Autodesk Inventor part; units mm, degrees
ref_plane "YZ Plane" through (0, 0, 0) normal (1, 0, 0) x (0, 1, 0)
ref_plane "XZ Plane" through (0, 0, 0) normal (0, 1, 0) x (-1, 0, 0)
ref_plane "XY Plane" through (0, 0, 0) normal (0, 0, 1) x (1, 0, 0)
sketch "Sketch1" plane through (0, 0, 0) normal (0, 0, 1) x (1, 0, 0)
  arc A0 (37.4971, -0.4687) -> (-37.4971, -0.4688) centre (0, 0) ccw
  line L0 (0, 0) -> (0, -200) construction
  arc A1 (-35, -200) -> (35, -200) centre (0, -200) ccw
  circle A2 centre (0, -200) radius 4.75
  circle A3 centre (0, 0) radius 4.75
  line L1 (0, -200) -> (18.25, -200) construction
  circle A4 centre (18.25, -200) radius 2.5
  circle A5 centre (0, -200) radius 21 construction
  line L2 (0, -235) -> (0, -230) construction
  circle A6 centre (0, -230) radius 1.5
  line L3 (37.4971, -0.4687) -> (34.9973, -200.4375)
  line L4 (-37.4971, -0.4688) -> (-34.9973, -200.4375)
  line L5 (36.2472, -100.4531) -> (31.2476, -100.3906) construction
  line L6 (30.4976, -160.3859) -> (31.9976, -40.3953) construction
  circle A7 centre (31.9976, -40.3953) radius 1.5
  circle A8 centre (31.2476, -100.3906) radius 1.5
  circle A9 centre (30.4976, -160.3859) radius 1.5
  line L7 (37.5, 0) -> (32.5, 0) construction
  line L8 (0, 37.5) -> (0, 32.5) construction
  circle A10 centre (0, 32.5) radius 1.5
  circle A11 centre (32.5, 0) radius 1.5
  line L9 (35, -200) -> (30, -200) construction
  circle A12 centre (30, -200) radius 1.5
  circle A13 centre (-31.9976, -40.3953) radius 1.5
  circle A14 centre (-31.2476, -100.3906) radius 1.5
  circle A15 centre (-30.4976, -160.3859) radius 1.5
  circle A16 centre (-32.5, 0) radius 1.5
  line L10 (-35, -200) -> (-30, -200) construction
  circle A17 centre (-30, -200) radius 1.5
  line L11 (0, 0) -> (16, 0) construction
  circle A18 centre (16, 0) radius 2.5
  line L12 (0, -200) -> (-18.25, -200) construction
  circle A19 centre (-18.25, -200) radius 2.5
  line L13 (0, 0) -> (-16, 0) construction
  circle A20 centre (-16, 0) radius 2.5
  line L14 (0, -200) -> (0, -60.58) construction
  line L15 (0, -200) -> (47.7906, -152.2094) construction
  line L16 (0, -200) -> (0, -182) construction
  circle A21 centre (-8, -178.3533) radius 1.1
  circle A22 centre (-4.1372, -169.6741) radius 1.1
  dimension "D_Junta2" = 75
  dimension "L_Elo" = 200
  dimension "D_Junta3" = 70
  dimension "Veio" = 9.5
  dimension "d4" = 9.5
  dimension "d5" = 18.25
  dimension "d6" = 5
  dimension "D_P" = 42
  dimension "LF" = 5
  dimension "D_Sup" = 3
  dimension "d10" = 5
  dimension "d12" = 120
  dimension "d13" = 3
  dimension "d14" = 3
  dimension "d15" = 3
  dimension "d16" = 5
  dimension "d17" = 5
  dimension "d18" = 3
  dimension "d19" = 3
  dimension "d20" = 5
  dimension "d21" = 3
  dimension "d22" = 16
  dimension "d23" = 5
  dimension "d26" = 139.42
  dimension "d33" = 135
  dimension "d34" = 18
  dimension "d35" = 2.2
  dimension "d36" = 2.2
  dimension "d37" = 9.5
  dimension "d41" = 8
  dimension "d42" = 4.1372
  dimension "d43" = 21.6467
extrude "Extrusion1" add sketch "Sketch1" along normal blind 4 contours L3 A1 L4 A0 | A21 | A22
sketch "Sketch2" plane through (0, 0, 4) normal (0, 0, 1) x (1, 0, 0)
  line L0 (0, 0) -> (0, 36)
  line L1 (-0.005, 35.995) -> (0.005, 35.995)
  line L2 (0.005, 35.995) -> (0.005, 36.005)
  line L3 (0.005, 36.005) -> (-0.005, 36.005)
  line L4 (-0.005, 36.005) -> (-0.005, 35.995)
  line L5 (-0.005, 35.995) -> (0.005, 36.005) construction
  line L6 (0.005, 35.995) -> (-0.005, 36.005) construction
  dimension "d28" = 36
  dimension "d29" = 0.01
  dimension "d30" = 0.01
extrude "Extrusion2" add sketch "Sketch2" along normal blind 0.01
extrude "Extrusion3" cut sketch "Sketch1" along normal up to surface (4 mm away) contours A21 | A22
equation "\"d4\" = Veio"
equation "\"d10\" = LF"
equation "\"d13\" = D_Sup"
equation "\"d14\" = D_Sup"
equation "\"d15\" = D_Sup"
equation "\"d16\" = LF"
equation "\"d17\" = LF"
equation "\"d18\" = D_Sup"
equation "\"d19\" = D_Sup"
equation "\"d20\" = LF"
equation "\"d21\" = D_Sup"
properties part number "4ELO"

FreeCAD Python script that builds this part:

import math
import FreeCAD as App
import Part
import Sketcher

V = App.Vector

doc = App.newDocument("Part")
params = doc.addObject("Spreadsheet::Sheet", "Params")
for row, (alias, value) in enumerate([
    ("sketch1_diameter", "3 mm"),
    ("sketch1_diameter2", "5 mm"),
    ("sketch1_radius", "35 mm"),
    ("sketch1_diameter3", "9.5 mm"),
    ("sketch1_radius2", "37.5 mm"),
    ("pad1_length", "4 mm"),
    ("sketch2_width", "0.01 mm"),
    ("pad2_length", "0.01 mm"),
    ("sketch3_diameter", "2.2 mm"),
    ("pocket1_length", "4 mm"),
], start=1):
    params.set(f"A{row}", alias)
    params.set(f"B{row}", "=" + value)
    params.setAlias(f"B{row}", alias)

body = doc.addObject("PartDesign::Body", "Body")

sketch1 = body.newObject("Sketcher::SketchObject", "Sketch")
sketch1.AttachmentSupport = (doc.getObject("XY_Plane"), [""])
sketch1.MapMode = "FlatFace"
sketch1.addGeometry([
    Part.LineSegment(V(35, -200.4, 0), V(37.5, -0.5, 0)),
    Part.ArcOfCircle(Part.Circle(V(0, 0, 0), V(0, 0, 1), 37.5), math.radians(-1), math.radians(181)),
    Part.LineSegment(V(-37.5, -0.5, 0), V(-35, -200.4, 0)),
    Part.ArcOfCircle(Part.Circle(V(0, -200, 0), V(0, 0, 1), 35), math.radians(-179), math.radians(-1)),
    Part.Circle(V(-30, -200, 0), V(0, 0, 1), 1.5),
    Part.Circle(V(-18.2, -200, 0), V(0, 0, 1), 2.5),
    Part.Circle(V(-30.5, -160.4, 0), V(0, 0, 1), 1.5),
    Part.Circle(V(-31.2, -100.4, 0), V(0, 0, 1), 1.5),
    Part.Circle(V(0, -230, 0), V(0, 0, 1), 1.5),
    Part.Circle(V(0, -200, 0), V(0, 0, 1), 4.8),
    Part.Circle(V(18.2, -200, 0), V(0, 0, 1), 2.5),
    Part.Circle(V(30, -200, 0), V(0, 0, 1), 1.5),
    Part.Circle(V(30.5, -160.4, 0), V(0, 0, 1), 1.5),
    Part.Circle(V(31.2, -100.4, 0), V(0, 0, 1), 1.5),
    Part.Circle(V(-32, -40.4, 0), V(0, 0, 1), 1.5),
    Part.Circle(V(-32.5, 0, 0), V(0, 0, 1), 1.5),
    Part.Circle(V(-16, 0, 0), V(0, 0, 1), 2.5),
    Part.Circle(V(32, -40.4, 0), V(0, 0, 1), 1.5),
    Part.Circle(V(0, 0, 0), V(0, 0, 1), 4.8),
    Part.Circle(V(16, 0, 0), V(0, 0, 1), 2.5),
    Part.Circle(V(0, 32.5, 0), V(0, 0, 1), 1.5),
    Part.Circle(V(32.5, 0, 0), V(0, 0, 1), 1.5),
], False)
sketch1.addConstraint([
    Sketcher.Constraint("Tangent", 0, 2, 1, 1),
    Sketcher.Constraint("Tangent", 1, 2, 2, 1),
    Sketcher.Constraint("Tangent", 2, 2, 3, 1),
    Sketcher.Constraint("Tangent", 3, 2, 0, 1),
    Sketcher.Constraint("Coincident", 1, 3, -1, 1),
    Sketcher.Constraint("Coincident", 18, 3, -1, 1),
    Sketcher.Constraint("Coincident", 9, 3, 3, 3),
    Sketcher.Constraint("Equal", 4, 6),
    Sketcher.Constraint("Equal", 6, 7),
    Sketcher.Constraint("Equal", 7, 8),
    Sketcher.Constraint("Equal", 5, 10),
    Sketcher.Constraint("Equal", 8, 11),
    Sketcher.Constraint("Equal", 11, 12),
    Sketcher.Constraint("Equal", 12, 13),
    Sketcher.Constraint("Equal", 13, 14),
    Sketcher.Constraint("Equal", 14, 15),
    Sketcher.Constraint("Equal", 10, 16),
    Sketcher.Constraint("Equal", 15, 17),
    Sketcher.Constraint("Equal", 9, 18),
    Sketcher.Constraint("Equal", 16, 19),
    Sketcher.Constraint("Equal", 17, 20),
    Sketcher.Constraint("Equal", 20, 21),
    Sketcher.Constraint("Symmetric", 16, 3, 19, 3, -1, 1),
    Sketcher.Constraint("Symmetric", 15, 3, 21, 3, -1, 1),
    Sketcher.Constraint("Symmetric", 5, 3, 10, 3, -2),
    Sketcher.Constraint("Symmetric", 4, 3, 11, 3, -2),
    Sketcher.Constraint("Symmetric", 6, 3, 12, 3, -2),
    Sketcher.Constraint("Symmetric", 7, 3, 13, 3, -2),
    Sketcher.Constraint("Symmetric", 14, 3, 17, 3, -2),
    Sketcher.Constraint("PointOnObject", 3, 3, -2),
    Sketcher.Constraint("PointOnObject", 8, 3, -2),
    Sketcher.Constraint("PointOnObject", 15, 3, -1),
    Sketcher.Constraint("PointOnObject", 16, 3, -1),
    Sketcher.Constraint("PointOnObject", 20, 3, -2),
    Sketcher.Constraint("Horizontal", 3, 3, 4, 3),
    Sketcher.Constraint("Horizontal", 4, 3, 5, 3),
    Sketcher.Constraint("Diameter", 4, 3.0),
    Sketcher.Constraint("Diameter", 5, 5.0),
    Sketcher.Constraint("Radius", 3, 35.0),
    Sketcher.Constraint("Diameter", 9, 9.5),
    Sketcher.Constraint("Radius", 1, 37.5),
    Sketcher.Constraint("DistanceY", 3, 3, -1, 1, 200.0),
    Sketcher.Constraint("DistanceX", 16, 3, -1, 1, 16.0),
    Sketcher.Constraint("DistanceX", 5, 3, -1, 1, 18.25),
    Sketcher.Constraint("DistanceX", 4, 3, -1, 1, 30.0),
    Sketcher.Constraint("DistanceY", 8, 3, -1, 1, 230.0),
    Sketcher.Constraint("DistanceX", 15, 3, -1, 1, 32.5),
    Sketcher.Constraint("DistanceY", -1, 1, 20, 3, 32.5),
    Sketcher.Constraint("DistanceX", 14, 3, 6, 3, 1.5),
    Sketcher.Constraint("DistanceX", 7, 3, 6, 3, 0.75),
    Sketcher.Constraint("DistanceY", 6, 3, -1, 1, 160.386),
    Sketcher.Constraint("DistanceX", 6, 3, -1, 1, 30.4976),
    Sketcher.Constraint("DistanceY", 7, 3, -1, 1, 100.3906),
    Sketcher.Constraint("DistanceY", 14, 3, -1, 1, 40.3953),
])
sketch1.setExpression("Constraints[36]", "Params.sketch1_diameter")
sketch1.setExpression("Constraints[37]", "Params.sketch1_diameter2")
sketch1.setExpression("Constraints[38]", "Params.sketch1_radius")
sketch1.setExpression("Constraints[39]", "Params.sketch1_diameter3")
sketch1.setExpression("Constraints[40]", "Params.sketch1_radius2")
pad1 = body.newObject("PartDesign::Pad", "Pad")
pad1.Profile = sketch1
pad1.setExpression("Length", "Params.pad1_length")

sketch2 = body.newObject("Sketcher::SketchObject", "Sketch001")
sketch2.AttachmentSupport = (doc.getObject("XY_Plane"), [""])
sketch2.MapMode = "FlatFace"
sketch2.AttachmentOffset = App.Placement(V(0, 0, 4), App.Rotation())
sketch2.addGeometry([
    Part.LineSegment(V(-0.005, 36.005, 0), V(-0.005, 35.995, 0)),
    Part.LineSegment(V(-0.005, 35.995, 0), V(0.005, 35.995, 0)),
    Part.LineSegment(V(0.005, 35.995, 0), V(0.005, 36.005, 0)),
    Part.LineSegment(V(0.005, 36.005, 0), V(-0.005, 36.005, 0)),
], False)
sketch2.addConstraint([
    Sketcher.Constraint("Coincident", 0, 2, 1, 1),
    Sketcher.Constraint("Coincident", 1, 2, 2, 1),
    Sketcher.Constraint("Coincident", 2, 2, 3, 1),
    Sketcher.Constraint("Coincident", 3, 2, 0, 1),
    Sketcher.Constraint("Vertical", 0),
    Sketcher.Constraint("Horizontal", 1),
    Sketcher.Constraint("Vertical", 2),
    Sketcher.Constraint("Horizontal", 3),
    Sketcher.Constraint("Equal", 3, 0),
    Sketcher.Constraint("DistanceX", 1, 1, 1, 2, 0.01),
    Sketcher.Constraint("DistanceX", 0, 2, -1, 1, 0.005),
    Sketcher.Constraint("DistanceY", -1, 1, 0, 2, 35.995),
])
sketch2.setExpression("Constraints[9]", "Params.sketch2_width")
pad2 = body.newObject("PartDesign::Pad", "Pad001")
pad2.Profile = sketch2
pad2.setExpression("Length", "Params.pad2_length")

sketch3 = body.newObject("Sketcher::SketchObject", "Sketch002")
sketch3.AttachmentSupport = (doc.getObject("XY_Plane"), [""])
sketch3.MapMode = "FlatFace"
sketch3.addGeometry([
    Part.Circle(V(-8, -178.4, 0), V(0, 0, 1), 1.1),
    Part.Circle(V(-4.1, -169.7, 0), V(0, 0, 1), 1.1),
], False)
sketch3.addConstraint([
    Sketcher.Constraint("Equal", 0, 1),
    Sketcher.Constraint("Diameter", 0, 2.2),
    Sketcher.Constraint("DistanceX", 0, 3, -1, 1, 8.0),
    Sketcher.Constraint("DistanceX", 1, 3, -1, 1, 4.1372),
    Sketcher.Constraint("DistanceY", 1, 3, -1, 1, 169.674),
    Sketcher.Constraint("DistanceY", 0, 3, -1, 1, 178.3533),
])
sketch3.setExpression("Constraints[1]", "Params.sketch3_diameter")
pocket1 = body.newObject("PartDesign::Pocket", "Pocket")
pocket1.Profile = sketch3
pocket1.setExpression("Length", "Params.pocket1_length")
pocket1.Reversed = True

doc.recompute()
